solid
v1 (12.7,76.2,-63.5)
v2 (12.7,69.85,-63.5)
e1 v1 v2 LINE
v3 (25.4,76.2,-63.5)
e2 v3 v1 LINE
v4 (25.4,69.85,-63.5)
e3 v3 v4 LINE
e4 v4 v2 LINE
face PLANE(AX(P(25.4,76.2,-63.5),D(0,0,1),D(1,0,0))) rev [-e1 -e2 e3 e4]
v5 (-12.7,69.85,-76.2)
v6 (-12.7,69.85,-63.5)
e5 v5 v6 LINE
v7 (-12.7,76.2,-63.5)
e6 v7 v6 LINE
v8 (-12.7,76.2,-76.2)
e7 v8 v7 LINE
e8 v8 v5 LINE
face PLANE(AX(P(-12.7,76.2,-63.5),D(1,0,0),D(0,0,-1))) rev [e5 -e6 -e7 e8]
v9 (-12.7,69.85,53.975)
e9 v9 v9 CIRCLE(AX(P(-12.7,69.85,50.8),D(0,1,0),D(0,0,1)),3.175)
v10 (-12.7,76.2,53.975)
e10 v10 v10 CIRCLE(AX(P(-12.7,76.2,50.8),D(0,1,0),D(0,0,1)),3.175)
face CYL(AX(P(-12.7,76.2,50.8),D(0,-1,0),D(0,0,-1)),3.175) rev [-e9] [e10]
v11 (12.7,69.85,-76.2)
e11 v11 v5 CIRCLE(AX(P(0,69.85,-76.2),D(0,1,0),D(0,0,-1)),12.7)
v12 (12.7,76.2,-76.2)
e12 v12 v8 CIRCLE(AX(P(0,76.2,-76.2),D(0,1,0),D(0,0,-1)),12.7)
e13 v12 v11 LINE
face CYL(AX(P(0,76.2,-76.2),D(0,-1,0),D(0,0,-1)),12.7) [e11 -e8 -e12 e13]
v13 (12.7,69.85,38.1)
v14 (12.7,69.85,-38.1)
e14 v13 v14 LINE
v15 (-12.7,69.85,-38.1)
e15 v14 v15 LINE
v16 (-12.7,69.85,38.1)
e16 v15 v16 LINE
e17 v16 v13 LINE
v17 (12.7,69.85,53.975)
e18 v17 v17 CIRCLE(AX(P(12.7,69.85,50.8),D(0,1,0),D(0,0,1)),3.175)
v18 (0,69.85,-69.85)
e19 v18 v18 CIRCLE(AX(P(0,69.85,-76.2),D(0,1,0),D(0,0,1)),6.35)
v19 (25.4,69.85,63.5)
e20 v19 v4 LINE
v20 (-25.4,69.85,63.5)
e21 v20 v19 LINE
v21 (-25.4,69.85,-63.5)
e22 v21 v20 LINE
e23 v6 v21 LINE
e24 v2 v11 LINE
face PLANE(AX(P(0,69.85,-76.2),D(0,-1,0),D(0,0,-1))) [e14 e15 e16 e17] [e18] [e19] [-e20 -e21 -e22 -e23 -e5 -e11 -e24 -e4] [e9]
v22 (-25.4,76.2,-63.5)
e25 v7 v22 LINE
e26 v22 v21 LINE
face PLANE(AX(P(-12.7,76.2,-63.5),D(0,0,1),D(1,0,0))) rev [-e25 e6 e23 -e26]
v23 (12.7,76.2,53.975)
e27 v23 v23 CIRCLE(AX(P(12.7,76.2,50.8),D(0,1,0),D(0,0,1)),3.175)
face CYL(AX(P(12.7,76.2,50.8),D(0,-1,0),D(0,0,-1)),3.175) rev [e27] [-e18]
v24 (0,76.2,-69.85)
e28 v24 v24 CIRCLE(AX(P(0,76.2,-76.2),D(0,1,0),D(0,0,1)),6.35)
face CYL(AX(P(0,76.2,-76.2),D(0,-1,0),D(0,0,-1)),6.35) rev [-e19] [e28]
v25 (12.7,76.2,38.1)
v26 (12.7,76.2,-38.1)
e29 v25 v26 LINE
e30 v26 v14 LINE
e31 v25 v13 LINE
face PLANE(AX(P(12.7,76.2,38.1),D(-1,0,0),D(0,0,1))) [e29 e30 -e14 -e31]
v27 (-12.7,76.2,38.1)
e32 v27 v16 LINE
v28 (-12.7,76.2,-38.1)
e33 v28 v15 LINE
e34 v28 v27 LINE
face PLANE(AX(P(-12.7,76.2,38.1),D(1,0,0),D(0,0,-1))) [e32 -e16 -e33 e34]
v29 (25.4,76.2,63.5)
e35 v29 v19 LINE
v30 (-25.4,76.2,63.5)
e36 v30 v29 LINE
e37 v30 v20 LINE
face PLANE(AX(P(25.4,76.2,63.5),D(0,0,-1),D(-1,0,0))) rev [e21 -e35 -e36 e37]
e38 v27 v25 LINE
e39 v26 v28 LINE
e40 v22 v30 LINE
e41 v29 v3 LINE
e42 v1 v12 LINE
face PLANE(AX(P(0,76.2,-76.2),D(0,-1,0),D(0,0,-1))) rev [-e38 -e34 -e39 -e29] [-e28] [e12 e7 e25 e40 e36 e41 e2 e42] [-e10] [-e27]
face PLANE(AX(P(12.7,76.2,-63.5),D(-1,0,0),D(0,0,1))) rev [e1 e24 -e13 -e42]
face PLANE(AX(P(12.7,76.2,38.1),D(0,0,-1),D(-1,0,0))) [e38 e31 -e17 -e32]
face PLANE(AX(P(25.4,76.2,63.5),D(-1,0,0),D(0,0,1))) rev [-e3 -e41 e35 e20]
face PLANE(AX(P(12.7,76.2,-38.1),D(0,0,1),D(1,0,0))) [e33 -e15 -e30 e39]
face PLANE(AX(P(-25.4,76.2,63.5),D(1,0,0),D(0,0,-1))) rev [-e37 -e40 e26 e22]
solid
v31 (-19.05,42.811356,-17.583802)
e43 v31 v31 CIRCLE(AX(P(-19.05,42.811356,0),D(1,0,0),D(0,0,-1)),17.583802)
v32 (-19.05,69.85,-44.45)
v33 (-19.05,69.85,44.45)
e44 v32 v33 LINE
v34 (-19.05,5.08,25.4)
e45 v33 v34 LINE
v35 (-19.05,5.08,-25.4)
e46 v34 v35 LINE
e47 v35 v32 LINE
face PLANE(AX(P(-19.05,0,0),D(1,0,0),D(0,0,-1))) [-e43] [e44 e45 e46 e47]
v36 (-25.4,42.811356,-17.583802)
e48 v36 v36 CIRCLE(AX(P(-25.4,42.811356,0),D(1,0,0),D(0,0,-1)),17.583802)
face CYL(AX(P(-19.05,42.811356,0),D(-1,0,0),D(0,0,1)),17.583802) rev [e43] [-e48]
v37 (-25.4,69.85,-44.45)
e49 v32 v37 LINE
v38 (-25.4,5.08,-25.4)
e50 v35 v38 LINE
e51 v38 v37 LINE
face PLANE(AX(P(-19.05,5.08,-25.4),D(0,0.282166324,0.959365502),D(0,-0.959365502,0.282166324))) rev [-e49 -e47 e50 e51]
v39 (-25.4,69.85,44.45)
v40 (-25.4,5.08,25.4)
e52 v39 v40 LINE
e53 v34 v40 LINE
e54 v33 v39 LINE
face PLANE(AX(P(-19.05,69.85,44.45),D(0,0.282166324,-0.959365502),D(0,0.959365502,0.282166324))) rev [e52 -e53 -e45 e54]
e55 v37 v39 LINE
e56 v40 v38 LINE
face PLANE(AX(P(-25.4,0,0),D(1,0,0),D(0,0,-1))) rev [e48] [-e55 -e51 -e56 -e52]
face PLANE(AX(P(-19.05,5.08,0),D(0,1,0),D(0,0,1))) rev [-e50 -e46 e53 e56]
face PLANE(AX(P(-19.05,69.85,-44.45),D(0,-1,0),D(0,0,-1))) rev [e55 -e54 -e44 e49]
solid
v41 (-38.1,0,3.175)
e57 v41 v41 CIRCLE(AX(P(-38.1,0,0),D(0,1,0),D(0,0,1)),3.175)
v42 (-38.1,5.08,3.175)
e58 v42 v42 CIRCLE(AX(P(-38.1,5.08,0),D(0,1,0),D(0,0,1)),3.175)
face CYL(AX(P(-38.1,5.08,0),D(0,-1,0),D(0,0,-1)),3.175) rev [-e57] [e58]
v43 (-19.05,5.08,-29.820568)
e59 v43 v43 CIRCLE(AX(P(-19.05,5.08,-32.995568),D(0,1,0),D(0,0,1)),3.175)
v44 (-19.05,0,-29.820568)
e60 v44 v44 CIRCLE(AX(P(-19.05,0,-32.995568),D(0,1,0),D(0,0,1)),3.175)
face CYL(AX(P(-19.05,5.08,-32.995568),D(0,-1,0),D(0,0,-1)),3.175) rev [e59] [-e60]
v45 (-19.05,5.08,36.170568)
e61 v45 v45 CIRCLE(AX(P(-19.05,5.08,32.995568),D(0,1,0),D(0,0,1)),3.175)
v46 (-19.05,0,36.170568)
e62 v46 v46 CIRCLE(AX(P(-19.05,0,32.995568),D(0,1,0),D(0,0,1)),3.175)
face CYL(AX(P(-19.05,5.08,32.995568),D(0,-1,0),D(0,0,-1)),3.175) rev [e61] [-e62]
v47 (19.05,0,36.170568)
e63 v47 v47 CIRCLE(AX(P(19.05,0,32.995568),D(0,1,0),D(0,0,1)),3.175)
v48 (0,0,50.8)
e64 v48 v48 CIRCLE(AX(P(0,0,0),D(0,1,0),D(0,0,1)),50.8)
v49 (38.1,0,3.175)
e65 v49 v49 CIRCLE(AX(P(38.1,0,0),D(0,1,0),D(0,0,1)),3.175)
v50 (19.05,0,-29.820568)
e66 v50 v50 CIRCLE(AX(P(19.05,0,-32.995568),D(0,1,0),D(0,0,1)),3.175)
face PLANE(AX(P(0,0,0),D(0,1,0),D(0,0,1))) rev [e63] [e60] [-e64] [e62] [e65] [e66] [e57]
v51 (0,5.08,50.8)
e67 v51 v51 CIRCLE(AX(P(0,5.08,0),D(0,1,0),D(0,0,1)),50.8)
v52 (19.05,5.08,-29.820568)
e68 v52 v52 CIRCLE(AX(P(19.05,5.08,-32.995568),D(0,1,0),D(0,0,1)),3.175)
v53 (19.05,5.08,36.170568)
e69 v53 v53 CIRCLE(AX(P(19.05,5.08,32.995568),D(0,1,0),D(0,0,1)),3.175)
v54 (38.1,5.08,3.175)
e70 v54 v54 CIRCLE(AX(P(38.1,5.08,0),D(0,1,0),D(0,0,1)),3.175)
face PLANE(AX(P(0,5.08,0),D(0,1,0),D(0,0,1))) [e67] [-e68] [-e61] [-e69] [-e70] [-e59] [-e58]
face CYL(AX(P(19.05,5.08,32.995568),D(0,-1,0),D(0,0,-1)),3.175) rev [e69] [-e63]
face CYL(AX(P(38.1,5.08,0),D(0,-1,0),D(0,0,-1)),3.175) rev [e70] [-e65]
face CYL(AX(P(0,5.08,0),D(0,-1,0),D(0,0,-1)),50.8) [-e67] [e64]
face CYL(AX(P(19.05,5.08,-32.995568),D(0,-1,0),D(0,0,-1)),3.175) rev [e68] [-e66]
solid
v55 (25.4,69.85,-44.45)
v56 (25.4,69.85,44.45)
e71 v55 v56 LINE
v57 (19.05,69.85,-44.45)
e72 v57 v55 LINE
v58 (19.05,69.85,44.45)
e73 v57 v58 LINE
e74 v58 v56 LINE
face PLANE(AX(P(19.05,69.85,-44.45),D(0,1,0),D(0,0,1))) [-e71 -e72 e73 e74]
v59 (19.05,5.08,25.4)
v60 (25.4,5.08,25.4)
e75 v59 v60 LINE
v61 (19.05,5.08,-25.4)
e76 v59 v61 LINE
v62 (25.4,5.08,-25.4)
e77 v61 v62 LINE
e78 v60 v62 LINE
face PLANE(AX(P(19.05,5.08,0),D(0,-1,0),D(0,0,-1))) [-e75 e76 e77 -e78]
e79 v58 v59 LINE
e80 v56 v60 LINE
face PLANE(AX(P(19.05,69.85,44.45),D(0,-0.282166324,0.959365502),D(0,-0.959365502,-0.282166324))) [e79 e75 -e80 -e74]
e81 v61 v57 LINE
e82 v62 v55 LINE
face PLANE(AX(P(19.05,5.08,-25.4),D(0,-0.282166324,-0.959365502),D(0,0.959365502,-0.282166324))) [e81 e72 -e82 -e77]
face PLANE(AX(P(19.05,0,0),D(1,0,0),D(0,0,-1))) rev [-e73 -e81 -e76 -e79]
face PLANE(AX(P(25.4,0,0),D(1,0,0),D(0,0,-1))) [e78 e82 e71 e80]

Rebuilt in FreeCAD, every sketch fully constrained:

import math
import FreeCAD as App
import Part
import Sketcher
from FreeCAD import Vector
Q = App.Units.Quantity


def add_polygon(sketch, points):
    """Adds a closed chain of lines whose ends are joined by coincident constraints."""
    first, n = sketch.GeometryCount, len(points)
    for a, b in zip(points, points[1:] + points[:1]):
        sketch.addGeometry(Part.LineSegment(App.Vector(*a, 0), App.Vector(*b, 0)), False)
    for i in range(n):
        sketch.addConstraint(Sketcher.Constraint("Coincident", first + i, 2, first + (i + 1) % n, 1))

doc = App.newDocument("Part")
params = doc.addObject("Spreadsheet::Sheet", "Params")
for row, (alias, value) in enumerate([
    ("sketch1_diameter", "4 in"),
    ("sketch1_diameter2", "0.25 in"),
    ("pad1_length", "0.2 in"),
    ("sketch2_diameter", "0.5 in"),
    ("sketch2_radius", "0.5 in"),
    ("sketch2_diameter2", "0.25 in"),
    ("sketch2_width", "2 in"),
    ("sketch2_height", "5 in"),
    ("pad2_length", "0.25 in"),
    ("sketch3_height", "2 in"),
    ("sketch3_height2", "3.5 in"),
    ("pad3_length", "0.25 in"),
    ("sketch4_height", "2 in"),
    ("sketch4_height2", "3.5 in"),
    ("pad4_length", "0.25 in"),
], start=1):
    params.set(f"A{row}", alias)
    params.set(f"B{row}", "=" + value)
    params.setAlias(f"B{row}", alias)

body = doc.addObject("PartDesign::Body", "Body")

sketch1 = body.newObject("Sketcher::SketchObject", "Sketch")
sketch1.AttachmentSupport = (doc.getObject("XZ_Plane"), [""])
sketch1.MapMode = "FlatFace"
sketch1.addGeometry(Part.Circle(Vector(0, 0, 0), Vector(0, 0, 1), 50.8), False)
sketch1.addGeometry(Part.Circle(Vector(-19.1, -33, 0), Vector(0, 0, 1), 3.2), False)
sketch1.addGeometry(Part.Circle(Vector(-38.1, 0, 0), Vector(0, 0, 1), 3.2), False)
sketch1.addGeometry(Part.Circle(Vector(-19.1, 33, 0), Vector(0, 0, 1), 3.2), False)
sketch1.addGeometry(Part.Circle(Vector(19.1, -33, 0), Vector(0, 0, 1), 3.2), False)
sketch1.addGeometry(Part.Circle(Vector(38.1, 0, 0), Vector(0, 0, 1), 3.2), False)
sketch1.addGeometry(Part.Circle(Vector(19.1, 33, 0), Vector(0, 0, 1), 3.2), False)
sketch1.addConstraint(Sketcher.Constraint("Coincident", 0, 3, -1, 1))
sketch1.addConstraint(Sketcher.Constraint("Equal", 1, 2))
sketch1.addConstraint(Sketcher.Constraint("Equal", 2, 3))
sketch1.addConstraint(Sketcher.Constraint("Equal", 3, 4))
sketch1.addConstraint(Sketcher.Constraint("Equal", 4, 5))
sketch1.addConstraint(Sketcher.Constraint("Equal", 5, 6))
sketch1.addConstraint(Sketcher.Constraint("Symmetric", 3, 3, 4, 3, -1, 1))
sketch1.addConstraint(Sketcher.Constraint("Symmetric", 2, 3, 5, 3, -1, 1))
sketch1.addConstraint(Sketcher.Constraint("Symmetric", 1, 3, 6, 3, -1, 1))
sketch1.addConstraint(Sketcher.Constraint("Symmetric", 1, 3, 4, 3, -2))
sketch1.addConstraint(Sketcher.Constraint("PointOnObject", 2, 3, -1))
sketch1.addConstraint(Sketcher.Constraint("Diameter", 0, Q("4 in")))
sketch1.addConstraint(Sketcher.Constraint("Diameter", 1, Q("0.25 in")))
sketch1.addConstraint(Sketcher.Constraint("DistanceX", 2, 3, 5, 3, Q("3 in")))
sketch1.addConstraint(Sketcher.Constraint("DistanceX", 1, 3, 4, 3, Q("1.5 in")))
sketch1.addConstraint(Sketcher.Constraint("DistanceY", 1, 3, -1, 1, 32.995568))
sketch1.setExpression("Constraints[11]", "Params.sketch1_diameter")
sketch1.setExpression("Constraints[12]", "Params.sketch1_diameter2")
pad1 = body.newObject("PartDesign::Pad", "Pad")
pad1.Profile = sketch1
pad1.setExpression("Length", "Params.pad1_length")
pad1.Reversed = True
body2 = doc.addObject("PartDesign::Body", "Body001")

sketch2 = body2.newObject("Sketcher::SketchObject", "Sketch001")
sketch2.AttachmentSupport = (doc.getObject("XZ_Plane001"), [""])
sketch2.MapMode = "FlatFace"
sketch2.AttachmentOffset = App.Placement(Vector(0, 0, -2.75 * 25.4), App.Rotation())
sketch2.addGeometry(Part.LineSegment(Vector(-12.7, -63.5, 0), Vector(-25.4, -63.5, 0)), False)
sketch2.addGeometry(Part.LineSegment(Vector(-25.4, -63.5, 0), Vector(-25.4, 63.5, 0)), False)
sketch2.addGeometry(Part.LineSegment(Vector(-25.4, 63.5, 0), Vector(25.4, 63.5, 0)), False)
sketch2.addGeometry(Part.LineSegment(Vector(25.4, 63.5, 0), Vector(25.4, -63.5, 0)), False)
sketch2.addGeometry(Part.LineSegment(Vector(25.4, -63.5, 0), Vector(12.7, -63.5, 0)), False)
sketch2.addGeometry(Part.LineSegment(Vector(12.7, -63.5, 0), Vector(12.7, -76.2, 0)), False)
sketch2.addGeometry(Part.ArcOfCircle(Part.Circle(Vector(0, -76.2, 0), Vector(0, 0, 1), 12.7), math.radians(180), math.radians(360)), False)
sketch2.addGeometry(Part.LineSegment(Vector(-12.7, -76.2, 0), Vector(-12.7, -63.5, 0)), False)
sketch2.addGeometry(Part.Circle(Vector(-12.7, 50.8, 0), Vector(0, 0, 1), 3.2), False)
sketch2.addGeometry(Part.Circle(Vector(12.7, 50.8, 0), Vector(0, 0, 1), 3.2), False)
add_polygon(sketch2, [(12.7, 38.1), (-12.7, 38.1), (-12.7, -38.1), (12.7, -38.1)])
sketch2.addGeometry(Part.Circle(Vector(0, -76.2, 0), Vector(0, 0, 1), 6.3), False)
sketch2.addConstraint(Sketcher.Constraint("Coincident", 0, 2, 1, 1))
sketch2.addConstraint(Sketcher.Constraint("Coincident", 1, 2, 2, 1))
sketch2.addConstraint(Sketcher.Constraint("Coincident", 2, 2, 3, 1))
sketch2.addConstraint(Sketcher.Constraint("Coincident", 3, 2, 4, 1))
sketch2.addConstraint(Sketcher.Constraint("Coincident", 4, 2, 5, 1))
sketch2.addConstraint(Sketcher.Constraint("Tangent", 5, 2, 6, 2))
sketch2.addConstraint(Sketcher.Constraint("Tangent", 6, 1, 7, 1))
sketch2.addConstraint(Sketcher.Constraint("Coincident", 7, 2, 0, 1))
sketch2.addConstraint(Sketcher.Constraint("Horizontal", 0))
sketch2.addConstraint(Sketcher.Constraint("Vertical", 1))
sketch2.addConstraint(Sketcher.Constraint("Horizontal", 2))
sketch2.addConstraint(Sketcher.Constraint("Vertical", 3))
sketch2.addConstraint(Sketcher.Constraint("Horizontal", 4))
sketch2.addConstraint(Sketcher.Constraint("Vertical", 5))
sketch2.addConstraint(Sketcher.Constraint("Vertical", 7))
sketch2.addConstraint(Sketcher.Constraint("Horizontal", 10))
sketch2.addConstraint(Sketcher.Constraint("Vertical", 11))
sketch2.addConstraint(Sketcher.Constraint("Horizontal", 12))
sketch2.addConstraint(Sketcher.Constraint("Vertical", 13))
sketch2.addConstraint(Sketcher.Constraint("Coincident", 14, 3, 6, 3))
sketch2.addConstraint(Sketcher.Constraint("Equal", 8, 9))
sketch2.addConstraint(Sketcher.Constraint("Symmetric", 0, 2, 2, 2, -1, 1))
sketch2.addConstraint(Sketcher.Constraint("Symmetric", 10, 2, 12, 2, -1, 1))
sketch2.addConstraint(Sketcher.Constraint("Symmetric", 8, 3, 9, 3, -2))
sketch2.addConstraint(Sketcher.Constraint("Symmetric", 4, 2, 7, 2, -2))
sketch2.addConstraint(Sketcher.Constraint("Vertical", 9, 3, 4, 2))
sketch2.addConstraint(Sketcher.Constraint("Vertical", 7, 2, 10, 2))
sketch2.addConstraint(Sketcher.Constraint("Equal", 4, 5))
sketch2.addConstraint(Sketcher.Constraint("Diameter", 14, Q("0.5 in")))
sketch2.addConstraint(Sketcher.Constraint("Radius", 6, Q("0.5 in")))
sketch2.addConstraint(Sketcher.Constraint("Diameter", 8, Q("0.25 in")))
sketch2.addConstraint(Sketcher.Constraint("DistanceX", 2, 1, 2, 2, Q("2 in")))
sketch2.addConstraint(Sketcher.Constraint("DistanceY", 1, 1, 1, 2, Q("5 in")))
sketch2.addConstraint(Sketcher.Constraint("DistanceY", 11, 2, 11, 1, Q("3 in")))
sketch2.addConstraint(Sketcher.Constraint("DistanceY", -1, 1, 8, 3, Q("2 in")))
sketch2.setExpression("Constraints[32]", "Params.sketch2_diameter")
sketch2.setExpression("Constraints[33]", "Params.sketch2_radius")
sketch2.setExpression("Constraints[34]", "Params.sketch2_diameter2")
sketch2.setExpression("Constraints[35]", "Params.sketch2_width")
sketch2.setExpression("Constraints[36]", "Params.sketch2_height")
pad2 = body2.newObject("PartDesign::Pad", "Pad001")
pad2.Profile = sketch2
pad2.setExpression("Length", "Params.pad2_length")
pad2.Reversed = True
body3 = doc.addObject("PartDesign::Body", "Body002")

sketch3 = body3.newObject("Sketcher::SketchObject", "Sketch002")
sketch3.AttachmentSupport = (doc.getObject("YZ_Plane002"), [""])
sketch3.MapMode = "FlatFace"
sketch3.AttachmentOffset = App.Placement(Vector(0, 0, -1 * 25.4), App.Rotation())
add_polygon(sketch3, [(5, -25), (70, -44), (70, 44), (5, 25)])
sketch3.addGeometry(Part.Circle(Vector(43, 0, 0), Vector(0, 0, 1), 18), False)
sketch3.addConstraint(Sketcher.Constraint("Vertical", 1))
sketch3.addConstraint(Sketcher.Constraint("Vertical", 3))
sketch3.addConstraint(Sketcher.Constraint("PointOnObject", 4, 3, -1))
sketch3.addConstraint(Sketcher.Constraint("Equal", 0, 2))
sketch3.addConstraint(Sketcher.Constraint("DistanceY", 3, 2, 3, 1, Q("2 in")))
sketch3.addConstraint(Sketcher.Constraint("DistanceY", 1, 1, 1, 2, Q("3.5 in")))
sketch3.addConstraint(Sketcher.Constraint("DistanceY", -1, 1, 2, 2, Q("1 in")))
sketch3.addConstraint(Sketcher.Constraint("DistanceX", -1, 1, 2, 2, Q("0.2 in")))
sketch3.addConstraint(Sketcher.Constraint("DistanceX", -1, 1, 0, 2, Q("2.75 in")))
sketch3.addConstraint(Sketcher.Constraint("Diameter", 4, 35.167603))
sketch3.addConstraint(Sketcher.Constraint("DistanceX", -1, 1, 4, 3, 42.811356))
sketch3.setExpression("Constraints[8]", "Params.sketch3_height")
sketch3.setExpression("Constraints[9]", "Params.sketch3_height2")
pad3 = body3.newObject("PartDesign::Pad", "Pad002")
pad3.Profile = sketch3
pad3.setExpression("Length", "Params.pad3_length")
body4 = doc.addObject("PartDesign::Body", "Body003")

sketch4 = body4.newObject("Sketcher::SketchObject", "Sketch003")
sketch4.AttachmentSupport = (doc.getObject("YZ_Plane003"), [""])
sketch4.MapMode = "FlatFace"
sketch4.AttachmentOffset = App.Placement(Vector(0, 0, 1 * 25.4), App.Rotation())
add_polygon(sketch4, [(5, -25), (70, -44), (70, 44), (5, 25)])
sketch4.addConstraint(Sketcher.Constraint("Vertical", 1))
sketch4.addConstraint(Sketcher.Constraint("Vertical", 3))
sketch4.addConstraint(Sketcher.Constraint("Equal", 0, 2))
sketch4.addConstraint(Sketcher.Constraint("DistanceY", 3, 2, 3, 1, Q("2 in")))
sketch4.addConstraint(Sketcher.Constraint("DistanceY", 1, 1, 1, 2, Q("3.5 in")))
sketch4.addConstraint(Sketcher.Constraint("DistanceY", -1, 1, 2, 2, Q("1 in")))
sketch4.addConstraint(Sketcher.Constraint("DistanceX", -1, 1, 2, 2, Q("0.2 in")))
sketch4.addConstraint(Sketcher.Constraint("DistanceX", -1, 1, 0, 2, Q("2.75 in")))
sketch4.setExpression("Constraints[7]", "Params.sketch4_height")
sketch4.setExpression("Constraints[8]", "Params.sketch4_height2")
pad4 = body4.newObject("PartDesign::Pad", "Pad003")
pad4.Profile = sketch4
pad4.setExpression("Length", "Params.pad4_length")
pad4.Reversed = True

doc.recompute()
